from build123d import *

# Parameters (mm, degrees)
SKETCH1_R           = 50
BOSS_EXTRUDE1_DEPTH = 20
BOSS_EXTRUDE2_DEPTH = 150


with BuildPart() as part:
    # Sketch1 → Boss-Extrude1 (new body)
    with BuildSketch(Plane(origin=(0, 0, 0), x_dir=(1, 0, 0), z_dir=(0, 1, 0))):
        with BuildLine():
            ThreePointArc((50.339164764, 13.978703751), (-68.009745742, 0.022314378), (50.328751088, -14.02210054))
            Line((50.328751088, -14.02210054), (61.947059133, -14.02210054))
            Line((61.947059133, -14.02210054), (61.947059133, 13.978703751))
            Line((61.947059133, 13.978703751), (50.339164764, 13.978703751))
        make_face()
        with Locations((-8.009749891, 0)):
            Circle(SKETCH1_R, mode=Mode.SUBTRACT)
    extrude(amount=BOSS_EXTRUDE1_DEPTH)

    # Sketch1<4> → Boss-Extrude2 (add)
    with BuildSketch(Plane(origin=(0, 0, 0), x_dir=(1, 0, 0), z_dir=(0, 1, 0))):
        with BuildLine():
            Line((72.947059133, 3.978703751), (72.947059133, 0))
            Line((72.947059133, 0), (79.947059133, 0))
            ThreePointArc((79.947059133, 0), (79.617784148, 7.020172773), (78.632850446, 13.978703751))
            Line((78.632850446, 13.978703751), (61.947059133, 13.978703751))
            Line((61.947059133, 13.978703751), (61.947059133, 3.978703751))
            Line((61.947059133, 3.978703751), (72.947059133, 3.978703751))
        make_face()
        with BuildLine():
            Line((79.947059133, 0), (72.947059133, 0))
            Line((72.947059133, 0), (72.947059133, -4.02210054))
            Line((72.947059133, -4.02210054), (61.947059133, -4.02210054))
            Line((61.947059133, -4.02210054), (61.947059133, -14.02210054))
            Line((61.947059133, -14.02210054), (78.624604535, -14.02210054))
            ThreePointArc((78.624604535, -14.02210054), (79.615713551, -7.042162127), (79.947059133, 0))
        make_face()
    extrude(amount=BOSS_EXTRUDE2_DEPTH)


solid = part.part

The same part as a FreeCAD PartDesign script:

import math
import FreeCAD as App
import Part
import Sketcher
from FreeCAD import Vector
Q = App.Units.Quantity

doc = App.newDocument("Part")
body = doc.addObject("PartDesign::Body", "Body")

# Sketch on XZ plane
sketch1 = body.newObject("Sketcher::SketchObject", "Sketch")
sketch1.AttachmentSupport = (doc.getObject("XZ_Plane"), [""])
sketch1.MapMode = "FlatFace"
sketch1.addGeometry([
    Part.ArcOfCircle(Part.Circle(Vector(-8.00975, 0, 0), Vector(0, 0, 1), 60), math.radians(13.515103), math.radians(346.527514)),  # 0
    Part.LineSegment(Vector(50.328751, 14.022101, 0), Vector(61.947059, 14.022101, 0)),  # 1
    Part.LineSegment(Vector(61.947059, 14.022101, 0), Vector(61.947059, -13.978704, 0)),  # 2
    Part.LineSegment(Vector(61.947059, -13.978704, 0), Vector(50.339165, -13.978704, 0)),  # 3
    Part.Circle(Vector(-8.00975, 0, 0), Vector(0, 0, 1), 50),  # 4
], False)
sketch1.addConstraint([
    Sketcher.Constraint("Coincident", 0, 1, 1, 1),
    Sketcher.Constraint("Coincident", 1, 2, 2, 1),
    Sketcher.Constraint("Coincident", 2, 2, 3, 1),
    Sketcher.Constraint("Coincident", 3, 2, 0, 2),
    Sketcher.Constraint("Horizontal", 1),
    Sketcher.Constraint("Vertical", 2),
    Sketcher.Constraint("Horizontal", 3),
    Sketcher.Constraint("Coincident", 4, 3, 0, 3),
    Sketcher.Constraint("PointOnObject", 0, 3, -1),
    Sketcher.Constraint("Diameter", 4, Q("100 mm")),
    Sketcher.Constraint("Radius", 0, Q("60 mm")),
    Sketcher.Constraint("DistanceX", 1, 1, 1, 2, Q("11.618308 mm")),
    Sketcher.Constraint("DistanceY", -1, 1, 0, 1, Q("14.022101 mm")),
    Sketcher.Constraint("DistanceX", 3, 2, 3, 1, Q("11.607894 mm")),
    Sketcher.Constraint("DistanceX", 0, 3, -1, 1, Q("8.00975 mm")),
])
pad1 = body.newObject("PartDesign::Pad", "Pad")
pad1.Profile = sketch1
pad1.Length = 20
pad1.Reversed = True

# Sketch on XZ plane
sketch2 = body.newObject("Sketcher::SketchObject", "Sketch001")
sketch2.AttachmentSupport = (doc.getObject("XZ_Plane"), [""])
sketch2.MapMode = "FlatFace"
sketch2.addGeometry([
    Part.LineSegment(Vector(72.947059, -3.978704, 0), Vector(72.947059, 4.022101, 0)),  # 0
    Part.LineSegment(Vector(72.947059, 4.022101, 0), Vector(61.947059, 4.022101, 0)),  # 1
    Part.LineSegment(Vector(61.947059, 4.022101, 0), Vector(61.947059, 14.022101, 0)),  # 2
    Part.LineSegment(Vector(61.947059, 14.022101, 0), Vector(78.624605, 14.022101, 0)),  # 3
    Part.ArcOfCircle(Part.Circle(Vector(4.947059, 0, 0), Vector(0, 0, 1), 75), math.radians(0), math.radians(10.775504)),  # 4
    Part.ArcOfCircle(Part.Circle(Vector(4.947059, 0, 0), Vector(0, 0, 1), 75), math.radians(-10.741758), math.radians(0)),  # 5
    Part.LineSegment(Vector(78.63285, -13.978704, 0), Vector(61.947059, -13.978704, 0)),  # 6
    Part.LineSegment(Vector(61.947059, -13.978704, 0), Vector(61.947059, -3.978704, 0)),  # 7
    Part.LineSegment(Vector(61.947059, -3.978704, 0), Vector(72.947059, -3.978704, 0)),  # 8
], False)
sketch2.addConstraint([
    Sketcher.Constraint("Coincident", 0, 2, 1, 1),
    Sketcher.Constraint("Coincident", 1, 2, 2, 1),
    Sketcher.Constraint("Coincident", 2, 2, 3, 1),
    Sketcher.Constraint("Coincident", 3, 2, 4, 2),
    Sketcher.Constraint("Tangent", 4, 1, 5, 2),
    Sketcher.Constraint("Coincident", 5, 1, 6, 1),
    Sketcher.Constraint("Coincident", 6, 2, 7, 1),
    Sketcher.Constraint("Coincident", 7, 2, 8, 1),
    Sketcher.Constraint("Coincident", 8, 2, 0, 1),
    Sketcher.Constraint("Vertical", 0),
    Sketcher.Constraint("Horizontal", 1),
    Sketcher.Constraint("Vertical", 2),
    Sketcher.Constraint("Horizontal", 3),
    Sketcher.Constraint("Horizontal", 6),
    Sketcher.Constraint("Vertical", 7),
    Sketcher.Constraint("Horizontal", 8),
    Sketcher.Constraint("Equal", 4, 5),
    Sketcher.Constraint("PointOnObject", 4, 3, -1),
    Sketcher.Constraint("PointOnObject", 4, 1, -1),
    Sketcher.Constraint("Vertical", 2, 2, 6, 2),
    Sketcher.Constraint("Equal", 2, 7),
    Sketcher.Constraint("Radius", 4, Q("75 mm")),
    Sketcher.Constraint("DistanceX", 1, 2, 1, 1, Q("11 mm")),
    Sketcher.Constraint("DistanceY", 2, 1, 2, 2, Q("10 mm")),
    Sketcher.Constraint("DistanceX", 5, 3, 0, 2, Q("68 mm")),
    Sketcher.Constraint("DistanceX", 6, 2, 6, 1, Q("16.685791 mm")),
    Sketcher.Constraint("DistanceY", -1, 1, 0, 2, Q("4.022101 mm")),
    Sketcher.Constraint("DistanceX", -1, 1, 4, 3, Q("4.947059 mm")),
])
pad2 = body.newObject("PartDesign::Pad", "Pad001")
pad2.Profile = sketch2
pad2.Length = 150
pad2.Reversed = True

doc.recompute()
